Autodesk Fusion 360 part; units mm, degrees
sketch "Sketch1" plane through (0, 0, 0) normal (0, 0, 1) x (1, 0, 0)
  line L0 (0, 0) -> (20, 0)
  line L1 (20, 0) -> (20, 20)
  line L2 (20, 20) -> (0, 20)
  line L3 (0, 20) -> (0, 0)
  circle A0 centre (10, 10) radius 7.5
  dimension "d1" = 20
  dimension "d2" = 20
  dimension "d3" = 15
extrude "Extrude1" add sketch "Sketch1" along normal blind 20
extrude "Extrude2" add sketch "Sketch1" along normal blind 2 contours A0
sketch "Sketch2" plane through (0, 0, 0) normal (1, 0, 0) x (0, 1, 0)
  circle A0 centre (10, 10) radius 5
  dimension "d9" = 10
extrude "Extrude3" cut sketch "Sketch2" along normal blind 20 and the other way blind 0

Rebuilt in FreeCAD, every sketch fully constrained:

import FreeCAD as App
import Part
import Sketcher
from FreeCAD import Vector

doc = App.newDocument("Part")
body = doc.addObject("PartDesign::Body", "Body")

# Sketch on XY plane
sketch1 = body.newObject("Sketcher::SketchObject", "Sketch")
sketch1.AttachmentSupport = (doc.getObject("XY_Plane"), [""])
sketch1.MapMode = "FlatFace"
sketch1.addGeometry([
    Part.LineSegment(Vector(0, 20, 0), Vector(0, 0, 0)),  # 0
    Part.LineSegment(Vector(0, 0, 0), Vector(20, 0, 0)),  # 1
    Part.LineSegment(Vector(20, 0, 0), Vector(20, 20, 0)),  # 2
    Part.LineSegment(Vector(20, 20, 0), Vector(0, 20, 0)),  # 3
    Part.Circle(Vector(10, 10, 0), Vector(0, 0, 1), 8),  # 4
], False)
sketch1.addConstraint([
    Sketcher.Constraint("Coincident", 0, 2, 1, 1),
    Sketcher.Constraint("Coincident", 1, 2, 2, 1),
    Sketcher.Constraint("Coincident", 2, 2, 3, 1),
    Sketcher.Constraint("Coincident", 3, 2, 0, 1),
    Sketcher.Constraint("Vertical", 0),
    Sketcher.Constraint("Horizontal", 1),
    Sketcher.Constraint("Vertical", 2),
    Sketcher.Constraint("Horizontal", 3),
    Sketcher.Constraint("Coincident", 0, 2, -1, 1),
    Sketcher.Constraint("Equal", 3, 0),
    Sketcher.Constraint("Diameter", 4, 15.0),
    Sketcher.Constraint("DistanceX", 1, 1, 1, 2, 20.0),
    Sketcher.Constraint("DistanceX", -1, 1, 4, 3, 10.0),
    Sketcher.Constraint("DistanceY", -1, 1, 4, 3, 10.0),
])
pad1 = body.newObject("PartDesign::Pad", "Pad")
pad1.Profile = sketch1
pad1.Length = 20

# Sketch on XY plane
sketch2 = body.newObject("Sketcher::SketchObject", "Sketch001")
sketch2.AttachmentSupport = (doc.getObject("XY_Plane"), [""])
sketch2.MapMode = "FlatFace"
sketch2.addGeometry(Part.Circle(Vector(10, 10, 0), Vector(0, 0, 1), 8), False)
sketch2.addConstraint([
    Sketcher.Constraint("Diameter", 0, 15.0),
    Sketcher.Constraint("DistanceX", -1, 1, 0, 3, 10.0),
    Sketcher.Constraint("DistanceY", -1, 1, 0, 3, 10.0),
])
pad2 = body.newObject("PartDesign::Pad", "Pad001")
pad2.Profile = sketch2
pad2.Length = 2

# Sketch on YZ plane
sketch3 = body.newObject("Sketcher::SketchObject", "Sketch002")
sketch3.AttachmentSupport = (doc.getObject("YZ_Plane"), [""])
sketch3.MapMode = "FlatFace"
sketch3.addGeometry(Part.Circle(Vector(10, 10, 0), Vector(0, 0, 1), 5), False)
sketch3.addConstraint([
    Sketcher.Constraint("Diameter", 0, 10.0),
    Sketcher.Constraint("DistanceX", -1, 1, 0, 3, 10.0),
    Sketcher.Constraint("DistanceY", -1, 1, 0, 3, 10.0),
])
pocket1 = body.newObject("PartDesign::Pocket", "Pocket")
pocket1.Profile = sketch3
pocket1.Length = 20
pocket1.Reversed = True

doc.recompute()
